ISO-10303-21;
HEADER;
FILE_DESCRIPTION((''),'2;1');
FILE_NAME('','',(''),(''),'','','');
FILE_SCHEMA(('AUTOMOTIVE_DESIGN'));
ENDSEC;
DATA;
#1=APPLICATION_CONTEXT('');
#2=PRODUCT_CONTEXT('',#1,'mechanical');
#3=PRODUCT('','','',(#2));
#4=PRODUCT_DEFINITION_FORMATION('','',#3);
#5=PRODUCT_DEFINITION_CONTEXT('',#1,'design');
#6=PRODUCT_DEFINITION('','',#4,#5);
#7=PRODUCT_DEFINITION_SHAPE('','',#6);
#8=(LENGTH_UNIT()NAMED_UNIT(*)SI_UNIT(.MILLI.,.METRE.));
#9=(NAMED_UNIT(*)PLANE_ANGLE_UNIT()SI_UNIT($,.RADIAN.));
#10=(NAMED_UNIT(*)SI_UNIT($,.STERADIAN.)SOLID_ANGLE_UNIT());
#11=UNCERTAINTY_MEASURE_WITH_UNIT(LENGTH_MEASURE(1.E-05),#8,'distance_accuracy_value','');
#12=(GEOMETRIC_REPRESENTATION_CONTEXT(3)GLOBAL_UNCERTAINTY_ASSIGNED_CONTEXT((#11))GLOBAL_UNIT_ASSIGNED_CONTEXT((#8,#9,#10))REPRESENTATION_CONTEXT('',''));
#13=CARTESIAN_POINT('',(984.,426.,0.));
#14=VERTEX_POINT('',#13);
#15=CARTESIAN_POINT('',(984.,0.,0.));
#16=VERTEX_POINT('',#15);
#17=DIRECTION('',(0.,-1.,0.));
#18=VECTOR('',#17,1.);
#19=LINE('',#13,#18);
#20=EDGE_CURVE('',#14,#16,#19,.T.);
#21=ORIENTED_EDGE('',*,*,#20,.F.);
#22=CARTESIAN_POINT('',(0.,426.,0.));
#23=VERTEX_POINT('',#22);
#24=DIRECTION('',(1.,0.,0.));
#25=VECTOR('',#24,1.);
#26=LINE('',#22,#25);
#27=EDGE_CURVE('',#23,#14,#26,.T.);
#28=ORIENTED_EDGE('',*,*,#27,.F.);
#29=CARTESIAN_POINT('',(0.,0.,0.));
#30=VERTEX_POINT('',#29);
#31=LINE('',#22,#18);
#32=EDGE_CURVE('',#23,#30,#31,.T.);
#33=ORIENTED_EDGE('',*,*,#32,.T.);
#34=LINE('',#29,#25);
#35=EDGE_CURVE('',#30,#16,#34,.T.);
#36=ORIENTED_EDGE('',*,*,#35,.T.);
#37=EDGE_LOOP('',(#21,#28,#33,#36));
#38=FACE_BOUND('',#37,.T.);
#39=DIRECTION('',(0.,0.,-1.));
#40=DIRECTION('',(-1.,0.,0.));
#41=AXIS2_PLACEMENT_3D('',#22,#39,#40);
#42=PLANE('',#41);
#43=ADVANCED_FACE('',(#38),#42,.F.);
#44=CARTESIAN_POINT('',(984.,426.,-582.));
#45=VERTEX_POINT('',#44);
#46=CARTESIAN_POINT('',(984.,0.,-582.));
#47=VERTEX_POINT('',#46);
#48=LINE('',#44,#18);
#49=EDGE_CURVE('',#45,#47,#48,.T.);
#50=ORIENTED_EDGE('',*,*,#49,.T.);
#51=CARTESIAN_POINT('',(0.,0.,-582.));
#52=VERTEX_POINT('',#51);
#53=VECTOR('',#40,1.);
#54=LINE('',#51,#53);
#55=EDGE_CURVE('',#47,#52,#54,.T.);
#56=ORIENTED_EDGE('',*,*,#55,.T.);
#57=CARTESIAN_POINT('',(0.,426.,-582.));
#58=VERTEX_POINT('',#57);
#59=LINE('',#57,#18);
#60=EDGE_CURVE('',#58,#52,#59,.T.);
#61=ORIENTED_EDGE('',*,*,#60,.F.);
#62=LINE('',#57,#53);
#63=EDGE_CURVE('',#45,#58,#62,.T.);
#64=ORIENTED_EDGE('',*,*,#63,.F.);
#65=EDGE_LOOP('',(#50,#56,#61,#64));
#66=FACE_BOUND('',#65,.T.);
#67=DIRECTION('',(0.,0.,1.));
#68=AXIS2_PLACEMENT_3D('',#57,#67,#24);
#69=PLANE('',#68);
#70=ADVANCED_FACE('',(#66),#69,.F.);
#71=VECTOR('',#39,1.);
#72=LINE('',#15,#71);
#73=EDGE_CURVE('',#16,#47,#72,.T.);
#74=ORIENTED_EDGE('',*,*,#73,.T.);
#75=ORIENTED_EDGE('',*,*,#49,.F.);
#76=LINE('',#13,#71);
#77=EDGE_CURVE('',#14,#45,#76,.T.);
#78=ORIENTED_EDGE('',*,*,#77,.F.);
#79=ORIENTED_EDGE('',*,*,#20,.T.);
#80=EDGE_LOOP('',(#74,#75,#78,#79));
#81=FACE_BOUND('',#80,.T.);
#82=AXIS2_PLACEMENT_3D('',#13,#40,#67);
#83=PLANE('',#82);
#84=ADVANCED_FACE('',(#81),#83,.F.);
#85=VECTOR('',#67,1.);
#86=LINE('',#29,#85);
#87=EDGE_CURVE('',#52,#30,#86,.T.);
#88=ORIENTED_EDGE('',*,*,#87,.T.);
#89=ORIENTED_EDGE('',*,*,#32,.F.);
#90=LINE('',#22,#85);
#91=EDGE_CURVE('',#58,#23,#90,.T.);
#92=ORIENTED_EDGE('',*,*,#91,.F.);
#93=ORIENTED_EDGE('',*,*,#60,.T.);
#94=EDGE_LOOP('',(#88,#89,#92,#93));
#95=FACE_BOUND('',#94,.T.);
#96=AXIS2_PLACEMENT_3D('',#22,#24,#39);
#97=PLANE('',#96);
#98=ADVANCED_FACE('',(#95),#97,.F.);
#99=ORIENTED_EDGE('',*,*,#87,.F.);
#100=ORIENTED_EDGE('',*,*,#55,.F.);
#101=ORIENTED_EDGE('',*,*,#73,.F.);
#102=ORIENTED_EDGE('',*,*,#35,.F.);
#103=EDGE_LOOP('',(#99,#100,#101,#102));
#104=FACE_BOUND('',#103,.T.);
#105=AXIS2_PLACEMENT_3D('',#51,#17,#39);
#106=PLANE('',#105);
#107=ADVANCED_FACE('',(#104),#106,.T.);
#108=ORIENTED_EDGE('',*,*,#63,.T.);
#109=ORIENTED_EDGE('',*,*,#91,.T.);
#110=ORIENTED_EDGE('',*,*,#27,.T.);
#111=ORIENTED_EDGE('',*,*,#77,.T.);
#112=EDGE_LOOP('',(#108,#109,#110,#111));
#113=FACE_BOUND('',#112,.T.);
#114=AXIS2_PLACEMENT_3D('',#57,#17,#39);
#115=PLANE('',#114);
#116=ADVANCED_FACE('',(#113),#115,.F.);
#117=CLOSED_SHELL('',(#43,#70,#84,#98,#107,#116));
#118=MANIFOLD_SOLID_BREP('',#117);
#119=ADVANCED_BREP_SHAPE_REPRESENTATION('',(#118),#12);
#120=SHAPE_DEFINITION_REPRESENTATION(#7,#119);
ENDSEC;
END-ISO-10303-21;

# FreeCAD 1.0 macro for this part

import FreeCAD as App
import Part
import Sketcher
from FreeCAD import Vector

doc = App.newDocument("Part")
params = doc.addObject("Spreadsheet::Sheet", "Params")
for row, (alias, value) in enumerate([
    ("sketch1_width", "984 mm"),
    ("sketch1_height", "582 mm"),
    ("pad1_length", "426 mm"),
], start=1):
    params.set(f"A{row}", alias)
    params.set(f"B{row}", "=" + value)
    params.setAlias(f"B{row}", alias)

body = doc.addObject("PartDesign::Body", "Body")

sketch1 = body.newObject("Sketcher::SketchObject", "Sketch")
sketch1.AttachmentSupport = (doc.getObject("XZ_Plane"), [""])
sketch1.MapMode = "FlatFace"
sketch1.addGeometry([
    Part.LineSegment(Vector(0, -582, 0), Vector(0, 0, 0)),
    Part.LineSegment(Vector(0, 0, 0), Vector(984, 0, 0)),
    Part.LineSegment(Vector(984, 0, 0), Vector(984, -582, 0)),
    Part.LineSegment(Vector(984, -582, 0), Vector(0, -582, 0)),
], False)
sketch1.addConstraint([
    Sketcher.Constraint("Coincident", 0, 2, 1, 1),
    Sketcher.Constraint("Coincident", 1, 2, 2, 1),
    Sketcher.Constraint("Coincident", 2, 2, 3, 1),
    Sketcher.Constraint("Coincident", 3, 2, 0, 1),
    Sketcher.Constraint("Vertical", 0),
    Sketcher.Constraint("Horizontal", 1),
    Sketcher.Constraint("Vertical", 2),
    Sketcher.Constraint("Horizontal", 3),
    Sketcher.Constraint("Coincident", 0, 2, -1, 1),
    Sketcher.Constraint("DistanceX", 1, 1, 1, 2, 984.0),
    Sketcher.Constraint("DistanceY", 0, 1, 0, 2, 582.0),
])
sketch1.setExpression("Constraints[9]", "Params.sketch1_width")
sketch1.setExpression("Constraints[10]", "Params.sketch1_height")
pad1 = body.newObject("PartDesign::Pad", "Pad")
pad1.Profile = sketch1
pad1.setExpression("Length", "Params.pad1_length")
pad1.Reversed = True

doc.recompute()
